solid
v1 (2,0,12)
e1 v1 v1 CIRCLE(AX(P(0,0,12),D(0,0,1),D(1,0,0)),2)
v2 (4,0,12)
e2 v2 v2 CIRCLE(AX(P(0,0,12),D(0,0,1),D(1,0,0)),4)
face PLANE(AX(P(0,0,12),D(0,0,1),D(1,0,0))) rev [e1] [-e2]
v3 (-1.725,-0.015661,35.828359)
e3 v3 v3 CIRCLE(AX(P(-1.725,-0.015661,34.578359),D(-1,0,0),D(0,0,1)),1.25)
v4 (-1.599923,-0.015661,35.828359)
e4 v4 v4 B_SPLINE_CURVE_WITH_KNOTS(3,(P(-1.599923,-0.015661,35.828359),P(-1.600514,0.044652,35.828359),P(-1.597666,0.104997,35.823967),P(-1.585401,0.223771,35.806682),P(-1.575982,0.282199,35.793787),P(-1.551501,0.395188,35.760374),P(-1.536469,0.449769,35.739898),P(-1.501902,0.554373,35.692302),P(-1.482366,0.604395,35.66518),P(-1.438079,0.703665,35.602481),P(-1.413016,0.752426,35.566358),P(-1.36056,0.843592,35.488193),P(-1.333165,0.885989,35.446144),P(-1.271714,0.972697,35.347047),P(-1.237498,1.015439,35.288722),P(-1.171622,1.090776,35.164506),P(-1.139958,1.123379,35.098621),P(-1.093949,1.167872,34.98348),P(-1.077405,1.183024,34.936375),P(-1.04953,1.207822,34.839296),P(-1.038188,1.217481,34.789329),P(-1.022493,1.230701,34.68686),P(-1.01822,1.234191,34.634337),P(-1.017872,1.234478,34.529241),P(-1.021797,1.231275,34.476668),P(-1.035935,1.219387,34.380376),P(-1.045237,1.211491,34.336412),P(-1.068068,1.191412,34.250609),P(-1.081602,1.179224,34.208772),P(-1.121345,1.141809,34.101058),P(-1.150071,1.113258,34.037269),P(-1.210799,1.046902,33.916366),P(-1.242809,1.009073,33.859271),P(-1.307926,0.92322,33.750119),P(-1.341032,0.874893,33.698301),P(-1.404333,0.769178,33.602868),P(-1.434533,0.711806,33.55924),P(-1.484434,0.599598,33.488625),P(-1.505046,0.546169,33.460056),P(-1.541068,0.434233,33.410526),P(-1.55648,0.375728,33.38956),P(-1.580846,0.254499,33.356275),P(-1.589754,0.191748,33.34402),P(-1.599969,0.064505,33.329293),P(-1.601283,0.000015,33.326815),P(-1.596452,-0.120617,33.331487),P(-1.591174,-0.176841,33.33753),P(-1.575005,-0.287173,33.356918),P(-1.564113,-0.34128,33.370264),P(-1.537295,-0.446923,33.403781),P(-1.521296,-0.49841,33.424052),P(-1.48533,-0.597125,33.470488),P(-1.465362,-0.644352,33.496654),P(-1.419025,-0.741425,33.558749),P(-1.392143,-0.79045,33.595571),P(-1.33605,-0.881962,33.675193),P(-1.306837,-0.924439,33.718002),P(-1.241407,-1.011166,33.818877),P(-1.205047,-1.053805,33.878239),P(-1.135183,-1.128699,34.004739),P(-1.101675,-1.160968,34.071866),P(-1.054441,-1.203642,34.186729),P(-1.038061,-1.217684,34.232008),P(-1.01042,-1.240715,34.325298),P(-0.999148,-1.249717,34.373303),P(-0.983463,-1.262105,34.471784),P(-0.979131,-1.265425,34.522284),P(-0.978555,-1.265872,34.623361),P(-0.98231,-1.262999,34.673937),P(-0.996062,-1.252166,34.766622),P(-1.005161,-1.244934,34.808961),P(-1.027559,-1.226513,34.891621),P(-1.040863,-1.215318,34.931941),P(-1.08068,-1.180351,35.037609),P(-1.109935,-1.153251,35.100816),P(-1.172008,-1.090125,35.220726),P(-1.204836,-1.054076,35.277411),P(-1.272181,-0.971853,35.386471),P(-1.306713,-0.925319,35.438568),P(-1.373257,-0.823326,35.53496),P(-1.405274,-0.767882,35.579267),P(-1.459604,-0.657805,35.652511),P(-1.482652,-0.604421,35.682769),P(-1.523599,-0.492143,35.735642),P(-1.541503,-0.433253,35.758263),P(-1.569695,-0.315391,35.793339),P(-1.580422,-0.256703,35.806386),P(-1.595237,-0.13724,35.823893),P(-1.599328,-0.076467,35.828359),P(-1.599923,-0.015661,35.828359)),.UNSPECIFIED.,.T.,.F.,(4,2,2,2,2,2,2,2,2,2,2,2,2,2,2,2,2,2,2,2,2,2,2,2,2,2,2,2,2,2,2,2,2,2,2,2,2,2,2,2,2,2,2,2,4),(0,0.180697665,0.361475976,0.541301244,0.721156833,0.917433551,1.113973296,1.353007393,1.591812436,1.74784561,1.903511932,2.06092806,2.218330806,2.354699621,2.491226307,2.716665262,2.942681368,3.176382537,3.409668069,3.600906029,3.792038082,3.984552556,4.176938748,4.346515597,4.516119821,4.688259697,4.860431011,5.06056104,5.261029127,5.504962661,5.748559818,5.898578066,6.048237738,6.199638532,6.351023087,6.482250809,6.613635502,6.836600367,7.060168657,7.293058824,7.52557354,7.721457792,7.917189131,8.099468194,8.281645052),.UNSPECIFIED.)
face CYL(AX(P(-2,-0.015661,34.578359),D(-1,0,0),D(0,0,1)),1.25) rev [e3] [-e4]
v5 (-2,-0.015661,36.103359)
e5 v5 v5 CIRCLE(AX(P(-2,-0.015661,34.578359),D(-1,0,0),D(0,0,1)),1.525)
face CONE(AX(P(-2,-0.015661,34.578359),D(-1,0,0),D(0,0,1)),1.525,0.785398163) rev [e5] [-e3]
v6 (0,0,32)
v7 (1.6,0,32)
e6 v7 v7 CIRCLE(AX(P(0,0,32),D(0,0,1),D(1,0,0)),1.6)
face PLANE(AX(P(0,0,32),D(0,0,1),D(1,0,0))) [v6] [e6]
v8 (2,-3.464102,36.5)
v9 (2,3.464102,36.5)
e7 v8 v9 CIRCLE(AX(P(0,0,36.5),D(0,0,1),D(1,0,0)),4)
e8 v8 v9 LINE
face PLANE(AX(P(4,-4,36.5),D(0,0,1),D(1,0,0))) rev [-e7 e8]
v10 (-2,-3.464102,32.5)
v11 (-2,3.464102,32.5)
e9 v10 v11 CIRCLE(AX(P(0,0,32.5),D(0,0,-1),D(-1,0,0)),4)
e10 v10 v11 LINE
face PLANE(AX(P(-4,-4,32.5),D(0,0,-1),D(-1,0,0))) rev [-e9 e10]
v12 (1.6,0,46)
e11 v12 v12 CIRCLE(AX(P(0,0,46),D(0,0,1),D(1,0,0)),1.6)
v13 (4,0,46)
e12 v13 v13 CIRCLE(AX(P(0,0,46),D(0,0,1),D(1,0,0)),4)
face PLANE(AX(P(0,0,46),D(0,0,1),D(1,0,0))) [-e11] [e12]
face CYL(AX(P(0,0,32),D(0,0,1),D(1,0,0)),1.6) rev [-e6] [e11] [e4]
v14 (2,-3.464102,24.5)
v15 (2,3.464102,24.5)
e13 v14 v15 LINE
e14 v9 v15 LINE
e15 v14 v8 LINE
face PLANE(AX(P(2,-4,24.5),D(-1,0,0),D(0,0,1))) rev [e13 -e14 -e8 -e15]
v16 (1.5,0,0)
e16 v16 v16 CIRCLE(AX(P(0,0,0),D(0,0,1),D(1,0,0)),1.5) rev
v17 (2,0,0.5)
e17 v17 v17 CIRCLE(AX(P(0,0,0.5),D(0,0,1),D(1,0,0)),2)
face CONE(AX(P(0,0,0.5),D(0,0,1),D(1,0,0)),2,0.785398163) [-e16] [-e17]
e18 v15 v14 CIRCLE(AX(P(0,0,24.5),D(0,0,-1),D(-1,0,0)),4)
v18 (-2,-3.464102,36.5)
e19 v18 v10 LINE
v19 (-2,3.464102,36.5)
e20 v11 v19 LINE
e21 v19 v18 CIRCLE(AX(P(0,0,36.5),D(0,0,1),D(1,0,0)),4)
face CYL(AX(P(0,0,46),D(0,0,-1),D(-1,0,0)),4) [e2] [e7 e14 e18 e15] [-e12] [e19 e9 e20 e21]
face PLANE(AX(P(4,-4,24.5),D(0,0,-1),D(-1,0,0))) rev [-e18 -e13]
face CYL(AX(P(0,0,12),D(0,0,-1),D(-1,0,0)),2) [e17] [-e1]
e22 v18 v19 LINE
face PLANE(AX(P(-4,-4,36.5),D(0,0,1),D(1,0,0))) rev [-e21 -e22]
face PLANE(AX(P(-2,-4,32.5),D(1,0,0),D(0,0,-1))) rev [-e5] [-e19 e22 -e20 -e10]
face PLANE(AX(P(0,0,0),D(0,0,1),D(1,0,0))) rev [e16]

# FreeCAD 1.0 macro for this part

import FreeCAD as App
import Part
import Sketcher
Q = App.Units.Quantity


def edges_at(feature, points):
    """Names of the edges that pass closest to the given points."""
    edges = feature.Shape.Edges
    near = lambda p: min(range(len(edges)), key=lambda i: edges[i].distToShape(Part.Vertex(*p))[0])
    return sorted({f"Edge{near(p) + 1}" for p in points})

doc = App.newDocument("Part")
body = doc.addObject("PartDesign::Body", "Body")

sketch1 = body.newObject("Sketcher::SketchObject", "Sketch")
sketch1.AttachmentSupport = (doc.getObject("XY_Plane"), [""])
sketch1.MapMode = "FlatFace"
sketch1.addGeometry(Part.Circle(App.Vector(0, 0, 0), App.Vector(0, 0, 1), 2), False)
sketch1.addConstraint(Sketcher.Constraint("Coincident", 0, 3, -1, 1))
sketch1.addConstraint(Sketcher.Constraint("Diameter", 0, Q("4 mm")))
pad1 = body.newObject("PartDesign::Pad", "Pad")
pad1.Profile = sketch1
pad1.Length = 12
doc.recompute()

chamfer = body.newObject("PartDesign::Chamfer", "Chamfer")
chamfer.Base = (pad1, edges_at(pad1, [(-2, 0, 0)]))
chamfer.Size = 0.5

sketch2 = body.newObject("Sketcher::SketchObject", "Sketch001")
sketch2.AttachmentSupport = (doc.getObject("XY_Plane"), [""])
sketch2.MapMode = "FlatFace"
sketch2.AttachmentOffset = App.Placement(App.Vector(0, 0, 12), App.Rotation())
sketch2.addGeometry(Part.Circle(App.Vector(0, 0, 0), App.Vector(0, 0, 1), 4), False)
sketch2.addConstraint(Sketcher.Constraint("Coincident", 0, 3, -1, 1))
sketch2.addConstraint(Sketcher.Constraint("Diameter", 0, Q("8 mm")))
pad2 = body.newObject("PartDesign::Pad", "Pad001")
pad2.Profile = sketch2
pad2.Length = 34

sketch3 = body.newObject("Sketcher::SketchObject", "Sketch002")
sketch3.AttachmentSupport = (doc.getObject("XY_Plane"), [""])
sketch3.MapMode = "FlatFace"
sketch3.AttachmentOffset = App.Placement(App.Vector(0, 0, 46), App.Rotation())
sketch3.addGeometry(Part.Circle(App.Vector(0, 0, 0), App.Vector(0, 0, 1), 1.6), False)
sketch3.addConstraint(Sketcher.Constraint("Coincident", 0, 3, -1, 1))
sketch3.addConstraint(Sketcher.Constraint("Diameter", 0, Q("3.2 mm")))
pocket1 = body.newObject("PartDesign::Pocket", "Pocket")
pocket1.Profile = sketch3
pocket1.Length = 14

sketch4 = body.newObject("Sketcher::SketchObject", "Sketch003")
sketch4.AttachmentSupport = (doc.getObject("XZ_Plane"), [""])
sketch4.MapMode = "FlatFace"
sketch4.addGeometry(Part.LineSegment(App.Vector(2, 24.5, 0), App.Vector(2, 36.5, 0)), False)
sketch4.addGeometry(Part.LineSegment(App.Vector(2, 36.5, 0), App.Vector(4, 36.5, 0)), False)
sketch4.addGeometry(Part.LineSegment(App.Vector(4, 36.5, 0), App.Vector(4, 24.5, 0)), False)
sketch4.addGeometry(Part.LineSegment(App.Vector(4, 24.5, 0), App.Vector(2, 24.5, 0)), False)
sketch4.addConstraint(Sketcher.Constraint("Coincident", 0, 2, 1, 1))
sketch4.addConstraint(Sketcher.Constraint("Coincident", 1, 2, 2, 1))
sketch4.addConstraint(Sketcher.Constraint("Coincident", 2, 2, 3, 1))
sketch4.addConstraint(Sketcher.Constraint("Coincident", 3, 2, 0, 1))
sketch4.addConstraint(Sketcher.Constraint("Vertical", 0))
sketch4.addConstraint(Sketcher.Constraint("Horizontal", 1))
sketch4.addConstraint(Sketcher.Constraint("Vertical", 2))
sketch4.addConstraint(Sketcher.Constraint("Horizontal", 3))
sketch4.addConstraint(Sketcher.Constraint("DistanceX", 1, 1, 1, 2, Q("2 mm")))
sketch4.addConstraint(Sketcher.Constraint("DistanceY", 0, 1, 0, 2, Q("12 mm")))
sketch4.addConstraint(Sketcher.Constraint("DistanceX", -1, 1, 0, 2, Q("2 mm")))
sketch4.addConstraint(Sketcher.Constraint("DistanceY", -1, 1, 0, 2, Q("36.5 mm")))
pocket2 = body.newObject("PartDesign::Pocket", "Pocket001")
pocket2.Profile = sketch4
pocket2.Type = "ThroughAll"
pocket2.Midplane = True

sketch5 = body.newObject("Sketcher::SketchObject", "Sketch004")
sketch5.AttachmentSupport = (doc.getObject("XY_Plane"), [""])
sketch5.MapMode = "FlatFace"
sketch5.AttachmentOffset = App.Placement(App.Vector(0, 0, 46), App.Rotation())
sketch5.addGeometry(Part.Circle(App.Vector(0, 0, 0), App.Vector(0, 0, 1), 1.2), False)
sketch5.addConstraint(Sketcher.Constraint("Coincident", 0, 3, -1, 1))
sketch5.addConstraint(Sketcher.Constraint("Diameter", 0, Q("2.5 mm")))
doc.recompute()
hole = body.newObject("PartDesign::Hole", "Hole")
hole.Profile = sketch5
hole.ThreadType = "None"
hole.Diameter = 2.5
hole.DepthType = "Dimension"
hole.Depth = 13.248924
hole.DrillPoint = "Angled"
hole.DrillPointAngle = 118
hole.HoleCutType = "Countersink"
hole.HoleCutDiameter = 3.05
hole.HoleCutCountersinkAngle = 90

sketch6 = body.newObject("Sketcher::SketchObject", "Sketch005")
sketch6.AttachmentSupport = (doc.getObject("XZ_Plane"), [""])
sketch6.MapMode = "FlatFace"
sketch6.addGeometry(Part.LineSegment(App.Vector(-4, 32.5, 0), App.Vector(-4, 36.5, 0)), False)
sketch6.addGeometry(Part.LineSegment(App.Vector(-4, 36.5, 0), App.Vector(-2, 36.5, 0)), False)
sketch6.addGeometry(Part.LineSegment(App.Vector(-2, 36.5, 0), App.Vector(-2, 32.5, 0)), False)
sketch6.addGeometry(Part.LineSegment(App.Vector(-2, 32.5, 0), App.Vector(-4, 32.5, 0)), False)
sketch6.addConstraint(Sketcher.Constraint("Coincident", 0, 2, 1, 1))
sketch6.addConstraint(Sketcher.Constraint("Coincident", 1, 2, 2, 1))
sketch6.addConstraint(Sketcher.Constraint("Coincident", 2, 2, 3, 1))
sketch6.addConstraint(Sketcher.Constraint("Coincident", 3, 2, 0, 1))
sketch6.addConstraint(Sketcher.Constraint("Vertical", 0))
sketch6.addConstraint(Sketcher.Constraint("Horizontal", 1))
sketch6.addConstraint(Sketcher.Constraint("Vertical", 2))
sketch6.addConstraint(Sketcher.Constraint("Horizontal", 3))
sketch6.addConstraint(Sketcher.Constraint("DistanceX", 1, 1, 1, 2, Q("2 mm")))
sketch6.addConstraint(Sketcher.Constraint("DistanceY", 0, 1, 0, 2, Q("4 mm")))
sketch6.addConstraint(Sketcher.Constraint("DistanceX", 0, 2, -1, 1, Q("4 mm")))
sketch6.addConstraint(Sketcher.Constraint("DistanceY", -1, 1, 0, 2, Q("36.5 mm")))
pocket3 = body.newObject("PartDesign::Pocket", "Pocket002")
pocket3.Profile = sketch6
pocket3.Type = "ThroughAll"
pocket3.Midplane = True

sketch7 = body.newObject("Sketcher::SketchObject", "Sketch006")
sketch7.AttachmentSupport = (doc.getObject("YZ_Plane"), [""])
sketch7.MapMode = "FlatFace"
sketch7.AttachmentOffset = App.Placement(App.Vector(0, 0, -2), App.Rotation())
sketch7.addGeometry(Part.Circle(App.Vector(0, 34.6, 0), App.Vector(0, 0, 1), 1.2), False)
sketch7.addConstraint(Sketcher.Constraint("Diameter", 0, Q("2.5 mm")))
sketch7.addConstraint(Sketcher.Constraint("DistanceX", 0, 3, -1, 1, Q("0.015661 mm")))
sketch7.addConstraint(Sketcher.Constraint("DistanceY", -1, 1, 0, 3, Q("34.578359 mm")))
doc.recompute()
hole2 = body.newObject("PartDesign::Hole", "Hole001")
hole2.Profile = sketch7
hole2.ThreadType = "None"
hole2.Diameter = 2.5
hole2.DepthType = "Dimension"
hole2.Depth = 1.248924
hole2.DrillPoint = "Angled"
hole2.DrillPointAngle = 118
hole2.HoleCutType = "Countersink"
hole2.HoleCutDiameter = 3.05
hole2.HoleCutCountersinkAngle = 90
hole2.Reversed = True

doc.recompute()
